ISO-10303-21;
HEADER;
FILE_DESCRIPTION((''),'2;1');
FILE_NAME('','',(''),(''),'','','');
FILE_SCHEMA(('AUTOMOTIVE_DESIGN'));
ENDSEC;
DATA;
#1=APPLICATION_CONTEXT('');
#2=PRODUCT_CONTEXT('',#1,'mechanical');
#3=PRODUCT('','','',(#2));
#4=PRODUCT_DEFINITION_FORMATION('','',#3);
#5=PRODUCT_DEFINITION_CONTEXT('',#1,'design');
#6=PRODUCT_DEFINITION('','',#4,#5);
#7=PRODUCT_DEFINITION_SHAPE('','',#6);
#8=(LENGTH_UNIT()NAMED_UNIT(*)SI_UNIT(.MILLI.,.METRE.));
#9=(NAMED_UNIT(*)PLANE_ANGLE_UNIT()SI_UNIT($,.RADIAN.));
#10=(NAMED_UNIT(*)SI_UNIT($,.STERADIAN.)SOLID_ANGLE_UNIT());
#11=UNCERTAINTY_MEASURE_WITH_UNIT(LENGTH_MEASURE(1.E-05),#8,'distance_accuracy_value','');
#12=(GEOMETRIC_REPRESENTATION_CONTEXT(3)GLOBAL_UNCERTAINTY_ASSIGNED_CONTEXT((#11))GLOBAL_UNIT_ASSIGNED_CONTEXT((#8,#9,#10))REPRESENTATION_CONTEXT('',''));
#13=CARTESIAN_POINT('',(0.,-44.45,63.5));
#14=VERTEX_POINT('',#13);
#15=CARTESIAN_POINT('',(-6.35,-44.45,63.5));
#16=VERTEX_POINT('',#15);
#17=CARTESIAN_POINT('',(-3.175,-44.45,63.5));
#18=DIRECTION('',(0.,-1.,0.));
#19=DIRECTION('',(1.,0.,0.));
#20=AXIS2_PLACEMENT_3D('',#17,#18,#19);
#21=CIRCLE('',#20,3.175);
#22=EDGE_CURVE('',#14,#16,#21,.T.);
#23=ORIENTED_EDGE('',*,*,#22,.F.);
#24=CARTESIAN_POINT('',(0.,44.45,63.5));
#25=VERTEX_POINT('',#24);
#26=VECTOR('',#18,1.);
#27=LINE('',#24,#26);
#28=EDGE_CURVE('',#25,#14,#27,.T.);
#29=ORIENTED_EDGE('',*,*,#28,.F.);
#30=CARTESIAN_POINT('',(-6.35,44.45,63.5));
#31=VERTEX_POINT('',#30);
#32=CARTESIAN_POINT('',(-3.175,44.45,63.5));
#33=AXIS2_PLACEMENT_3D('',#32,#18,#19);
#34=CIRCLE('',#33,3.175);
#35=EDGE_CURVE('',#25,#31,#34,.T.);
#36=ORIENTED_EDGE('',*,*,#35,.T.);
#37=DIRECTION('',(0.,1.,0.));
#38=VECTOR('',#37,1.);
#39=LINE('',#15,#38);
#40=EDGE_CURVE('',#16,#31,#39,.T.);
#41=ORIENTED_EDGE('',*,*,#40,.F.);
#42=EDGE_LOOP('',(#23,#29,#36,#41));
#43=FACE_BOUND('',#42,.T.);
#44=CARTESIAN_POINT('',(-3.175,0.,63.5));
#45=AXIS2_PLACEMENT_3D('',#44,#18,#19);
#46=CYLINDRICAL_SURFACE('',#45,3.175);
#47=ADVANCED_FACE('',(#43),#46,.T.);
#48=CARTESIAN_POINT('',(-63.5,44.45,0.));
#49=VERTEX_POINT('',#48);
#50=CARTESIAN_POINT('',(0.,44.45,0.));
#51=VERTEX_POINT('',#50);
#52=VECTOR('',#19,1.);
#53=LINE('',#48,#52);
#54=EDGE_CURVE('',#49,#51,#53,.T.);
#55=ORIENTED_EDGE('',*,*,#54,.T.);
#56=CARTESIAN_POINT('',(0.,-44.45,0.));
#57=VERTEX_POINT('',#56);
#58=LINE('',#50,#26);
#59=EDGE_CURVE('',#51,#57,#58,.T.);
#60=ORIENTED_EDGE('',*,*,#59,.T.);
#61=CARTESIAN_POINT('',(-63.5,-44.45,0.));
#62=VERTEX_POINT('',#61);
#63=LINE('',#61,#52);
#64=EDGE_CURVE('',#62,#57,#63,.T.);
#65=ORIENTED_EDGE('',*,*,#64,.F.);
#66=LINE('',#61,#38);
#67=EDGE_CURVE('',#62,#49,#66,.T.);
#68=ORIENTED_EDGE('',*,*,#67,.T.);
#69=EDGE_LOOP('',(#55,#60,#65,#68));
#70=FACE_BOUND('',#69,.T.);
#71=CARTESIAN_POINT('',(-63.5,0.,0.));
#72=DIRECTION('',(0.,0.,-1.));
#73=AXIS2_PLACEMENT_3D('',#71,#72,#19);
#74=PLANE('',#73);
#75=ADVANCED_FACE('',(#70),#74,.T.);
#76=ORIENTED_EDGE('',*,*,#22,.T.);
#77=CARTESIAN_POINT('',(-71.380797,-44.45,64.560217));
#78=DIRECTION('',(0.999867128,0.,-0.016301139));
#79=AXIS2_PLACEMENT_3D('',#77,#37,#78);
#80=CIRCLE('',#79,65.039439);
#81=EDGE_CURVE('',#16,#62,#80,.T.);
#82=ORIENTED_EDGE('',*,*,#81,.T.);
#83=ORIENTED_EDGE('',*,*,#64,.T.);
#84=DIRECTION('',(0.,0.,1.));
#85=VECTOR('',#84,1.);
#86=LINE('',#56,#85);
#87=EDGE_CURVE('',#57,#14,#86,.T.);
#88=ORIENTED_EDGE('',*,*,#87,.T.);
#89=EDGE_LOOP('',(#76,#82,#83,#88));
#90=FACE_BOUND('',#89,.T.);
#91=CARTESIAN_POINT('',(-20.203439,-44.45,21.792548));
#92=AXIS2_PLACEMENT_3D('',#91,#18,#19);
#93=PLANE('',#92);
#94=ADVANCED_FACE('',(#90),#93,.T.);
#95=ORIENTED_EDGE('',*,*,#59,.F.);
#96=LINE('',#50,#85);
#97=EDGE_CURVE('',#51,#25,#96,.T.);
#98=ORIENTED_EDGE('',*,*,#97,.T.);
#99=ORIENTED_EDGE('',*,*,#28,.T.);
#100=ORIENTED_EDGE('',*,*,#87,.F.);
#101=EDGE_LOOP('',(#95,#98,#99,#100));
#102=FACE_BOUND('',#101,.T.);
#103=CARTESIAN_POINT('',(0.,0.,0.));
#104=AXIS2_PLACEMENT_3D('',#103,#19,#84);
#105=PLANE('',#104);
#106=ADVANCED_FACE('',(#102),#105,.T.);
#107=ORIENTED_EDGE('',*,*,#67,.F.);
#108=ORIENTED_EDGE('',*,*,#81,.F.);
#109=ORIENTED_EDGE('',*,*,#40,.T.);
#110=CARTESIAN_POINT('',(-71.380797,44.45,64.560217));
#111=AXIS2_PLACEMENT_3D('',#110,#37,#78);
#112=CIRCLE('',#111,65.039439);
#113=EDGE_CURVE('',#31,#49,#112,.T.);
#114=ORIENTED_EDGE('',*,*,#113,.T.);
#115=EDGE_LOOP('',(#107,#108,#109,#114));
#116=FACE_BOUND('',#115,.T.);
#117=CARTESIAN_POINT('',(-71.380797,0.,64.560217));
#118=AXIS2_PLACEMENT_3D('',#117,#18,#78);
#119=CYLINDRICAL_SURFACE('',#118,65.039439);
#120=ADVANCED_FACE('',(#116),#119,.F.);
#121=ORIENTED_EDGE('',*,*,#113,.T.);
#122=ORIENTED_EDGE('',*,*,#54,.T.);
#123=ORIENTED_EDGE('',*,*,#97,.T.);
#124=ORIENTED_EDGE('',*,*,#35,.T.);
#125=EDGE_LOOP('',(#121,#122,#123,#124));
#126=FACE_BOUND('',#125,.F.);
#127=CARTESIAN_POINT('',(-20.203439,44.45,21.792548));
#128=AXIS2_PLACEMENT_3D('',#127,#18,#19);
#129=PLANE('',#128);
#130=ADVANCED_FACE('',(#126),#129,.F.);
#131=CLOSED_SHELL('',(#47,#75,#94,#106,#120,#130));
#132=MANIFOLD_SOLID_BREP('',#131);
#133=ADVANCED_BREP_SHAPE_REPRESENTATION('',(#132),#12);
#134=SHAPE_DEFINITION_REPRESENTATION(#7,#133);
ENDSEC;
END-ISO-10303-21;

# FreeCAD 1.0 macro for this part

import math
import FreeCAD as App
import Part
import Sketcher
from FreeCAD import Vector
Q = App.Units.Quantity

doc = App.newDocument("Part")
body = doc.addObject("PartDesign::Body", "Body")

sketch1 = body.newObject("Sketcher::SketchObject", "Sketch")
sketch1.AttachmentSupport = (doc.getObject("XZ_Plane"), [""])
sketch1.MapMode = "FlatFace"
sketch1.addGeometry(Part.LineSegment(Vector(-63.5, 0, 0), Vector(0, 0, 0)), False)
sketch1.addGeometry(Part.LineSegment(Vector(0, 0, 0), Vector(0, 63.5, 0)), False)
sketch1.addGeometry(Part.ArcOfCircle(Part.Circle(Vector(-3.175, 63.5, 0), Vector(0, 0, 1), 3.175), math.radians(0), math.radians(180)), False)
sketch1.addGeometry(Part.ArcOfCircle(Part.Circle(Vector(-71.380797, 64.560217, 0), Vector(0, 0, 1), 65.039439), math.radians(-83.040397), math.radians(-0.934028)), False)
sketch1.addConstraint(Sketcher.Constraint("Coincident", 0, 2, 1, 1))
sketch1.addConstraint(Sketcher.Constraint("Tangent", 1, 2, 2, 1))
sketch1.addConstraint(Sketcher.Constraint("Coincident", 2, 2, 3, 2))
sketch1.addConstraint(Sketcher.Constraint("Coincident", 3, 1, 0, 1))
sketch1.addConstraint(Sketcher.Constraint("Horizontal", 0))
sketch1.addConstraint(Sketcher.Constraint("Vertical", 1))
sketch1.addConstraint(Sketcher.Constraint("Coincident", 0, 2, -1, 1))
sketch1.addConstraint(Sketcher.Constraint("Horizontal", 1, 2, 2, 2))
sketch1.addConstraint(Sketcher.Constraint("Equal", 0, 1))
sketch1.addConstraint(Sketcher.Constraint("DistanceX", 0, 1, 0, 2, Q("2.5 in")))
sketch1.addConstraint(Sketcher.Constraint("Radius", 2, Q("0.125 in")))
sketch1.addConstraint(Sketcher.Constraint("Radius", 3, Q("65.039439 mm")))
pad1 = body.newObject("PartDesign::Pad", "Pad")
pad1.Profile = sketch1
pad1.Length = Q("3.5 in")
pad1.Midplane = True

doc.recompute()
